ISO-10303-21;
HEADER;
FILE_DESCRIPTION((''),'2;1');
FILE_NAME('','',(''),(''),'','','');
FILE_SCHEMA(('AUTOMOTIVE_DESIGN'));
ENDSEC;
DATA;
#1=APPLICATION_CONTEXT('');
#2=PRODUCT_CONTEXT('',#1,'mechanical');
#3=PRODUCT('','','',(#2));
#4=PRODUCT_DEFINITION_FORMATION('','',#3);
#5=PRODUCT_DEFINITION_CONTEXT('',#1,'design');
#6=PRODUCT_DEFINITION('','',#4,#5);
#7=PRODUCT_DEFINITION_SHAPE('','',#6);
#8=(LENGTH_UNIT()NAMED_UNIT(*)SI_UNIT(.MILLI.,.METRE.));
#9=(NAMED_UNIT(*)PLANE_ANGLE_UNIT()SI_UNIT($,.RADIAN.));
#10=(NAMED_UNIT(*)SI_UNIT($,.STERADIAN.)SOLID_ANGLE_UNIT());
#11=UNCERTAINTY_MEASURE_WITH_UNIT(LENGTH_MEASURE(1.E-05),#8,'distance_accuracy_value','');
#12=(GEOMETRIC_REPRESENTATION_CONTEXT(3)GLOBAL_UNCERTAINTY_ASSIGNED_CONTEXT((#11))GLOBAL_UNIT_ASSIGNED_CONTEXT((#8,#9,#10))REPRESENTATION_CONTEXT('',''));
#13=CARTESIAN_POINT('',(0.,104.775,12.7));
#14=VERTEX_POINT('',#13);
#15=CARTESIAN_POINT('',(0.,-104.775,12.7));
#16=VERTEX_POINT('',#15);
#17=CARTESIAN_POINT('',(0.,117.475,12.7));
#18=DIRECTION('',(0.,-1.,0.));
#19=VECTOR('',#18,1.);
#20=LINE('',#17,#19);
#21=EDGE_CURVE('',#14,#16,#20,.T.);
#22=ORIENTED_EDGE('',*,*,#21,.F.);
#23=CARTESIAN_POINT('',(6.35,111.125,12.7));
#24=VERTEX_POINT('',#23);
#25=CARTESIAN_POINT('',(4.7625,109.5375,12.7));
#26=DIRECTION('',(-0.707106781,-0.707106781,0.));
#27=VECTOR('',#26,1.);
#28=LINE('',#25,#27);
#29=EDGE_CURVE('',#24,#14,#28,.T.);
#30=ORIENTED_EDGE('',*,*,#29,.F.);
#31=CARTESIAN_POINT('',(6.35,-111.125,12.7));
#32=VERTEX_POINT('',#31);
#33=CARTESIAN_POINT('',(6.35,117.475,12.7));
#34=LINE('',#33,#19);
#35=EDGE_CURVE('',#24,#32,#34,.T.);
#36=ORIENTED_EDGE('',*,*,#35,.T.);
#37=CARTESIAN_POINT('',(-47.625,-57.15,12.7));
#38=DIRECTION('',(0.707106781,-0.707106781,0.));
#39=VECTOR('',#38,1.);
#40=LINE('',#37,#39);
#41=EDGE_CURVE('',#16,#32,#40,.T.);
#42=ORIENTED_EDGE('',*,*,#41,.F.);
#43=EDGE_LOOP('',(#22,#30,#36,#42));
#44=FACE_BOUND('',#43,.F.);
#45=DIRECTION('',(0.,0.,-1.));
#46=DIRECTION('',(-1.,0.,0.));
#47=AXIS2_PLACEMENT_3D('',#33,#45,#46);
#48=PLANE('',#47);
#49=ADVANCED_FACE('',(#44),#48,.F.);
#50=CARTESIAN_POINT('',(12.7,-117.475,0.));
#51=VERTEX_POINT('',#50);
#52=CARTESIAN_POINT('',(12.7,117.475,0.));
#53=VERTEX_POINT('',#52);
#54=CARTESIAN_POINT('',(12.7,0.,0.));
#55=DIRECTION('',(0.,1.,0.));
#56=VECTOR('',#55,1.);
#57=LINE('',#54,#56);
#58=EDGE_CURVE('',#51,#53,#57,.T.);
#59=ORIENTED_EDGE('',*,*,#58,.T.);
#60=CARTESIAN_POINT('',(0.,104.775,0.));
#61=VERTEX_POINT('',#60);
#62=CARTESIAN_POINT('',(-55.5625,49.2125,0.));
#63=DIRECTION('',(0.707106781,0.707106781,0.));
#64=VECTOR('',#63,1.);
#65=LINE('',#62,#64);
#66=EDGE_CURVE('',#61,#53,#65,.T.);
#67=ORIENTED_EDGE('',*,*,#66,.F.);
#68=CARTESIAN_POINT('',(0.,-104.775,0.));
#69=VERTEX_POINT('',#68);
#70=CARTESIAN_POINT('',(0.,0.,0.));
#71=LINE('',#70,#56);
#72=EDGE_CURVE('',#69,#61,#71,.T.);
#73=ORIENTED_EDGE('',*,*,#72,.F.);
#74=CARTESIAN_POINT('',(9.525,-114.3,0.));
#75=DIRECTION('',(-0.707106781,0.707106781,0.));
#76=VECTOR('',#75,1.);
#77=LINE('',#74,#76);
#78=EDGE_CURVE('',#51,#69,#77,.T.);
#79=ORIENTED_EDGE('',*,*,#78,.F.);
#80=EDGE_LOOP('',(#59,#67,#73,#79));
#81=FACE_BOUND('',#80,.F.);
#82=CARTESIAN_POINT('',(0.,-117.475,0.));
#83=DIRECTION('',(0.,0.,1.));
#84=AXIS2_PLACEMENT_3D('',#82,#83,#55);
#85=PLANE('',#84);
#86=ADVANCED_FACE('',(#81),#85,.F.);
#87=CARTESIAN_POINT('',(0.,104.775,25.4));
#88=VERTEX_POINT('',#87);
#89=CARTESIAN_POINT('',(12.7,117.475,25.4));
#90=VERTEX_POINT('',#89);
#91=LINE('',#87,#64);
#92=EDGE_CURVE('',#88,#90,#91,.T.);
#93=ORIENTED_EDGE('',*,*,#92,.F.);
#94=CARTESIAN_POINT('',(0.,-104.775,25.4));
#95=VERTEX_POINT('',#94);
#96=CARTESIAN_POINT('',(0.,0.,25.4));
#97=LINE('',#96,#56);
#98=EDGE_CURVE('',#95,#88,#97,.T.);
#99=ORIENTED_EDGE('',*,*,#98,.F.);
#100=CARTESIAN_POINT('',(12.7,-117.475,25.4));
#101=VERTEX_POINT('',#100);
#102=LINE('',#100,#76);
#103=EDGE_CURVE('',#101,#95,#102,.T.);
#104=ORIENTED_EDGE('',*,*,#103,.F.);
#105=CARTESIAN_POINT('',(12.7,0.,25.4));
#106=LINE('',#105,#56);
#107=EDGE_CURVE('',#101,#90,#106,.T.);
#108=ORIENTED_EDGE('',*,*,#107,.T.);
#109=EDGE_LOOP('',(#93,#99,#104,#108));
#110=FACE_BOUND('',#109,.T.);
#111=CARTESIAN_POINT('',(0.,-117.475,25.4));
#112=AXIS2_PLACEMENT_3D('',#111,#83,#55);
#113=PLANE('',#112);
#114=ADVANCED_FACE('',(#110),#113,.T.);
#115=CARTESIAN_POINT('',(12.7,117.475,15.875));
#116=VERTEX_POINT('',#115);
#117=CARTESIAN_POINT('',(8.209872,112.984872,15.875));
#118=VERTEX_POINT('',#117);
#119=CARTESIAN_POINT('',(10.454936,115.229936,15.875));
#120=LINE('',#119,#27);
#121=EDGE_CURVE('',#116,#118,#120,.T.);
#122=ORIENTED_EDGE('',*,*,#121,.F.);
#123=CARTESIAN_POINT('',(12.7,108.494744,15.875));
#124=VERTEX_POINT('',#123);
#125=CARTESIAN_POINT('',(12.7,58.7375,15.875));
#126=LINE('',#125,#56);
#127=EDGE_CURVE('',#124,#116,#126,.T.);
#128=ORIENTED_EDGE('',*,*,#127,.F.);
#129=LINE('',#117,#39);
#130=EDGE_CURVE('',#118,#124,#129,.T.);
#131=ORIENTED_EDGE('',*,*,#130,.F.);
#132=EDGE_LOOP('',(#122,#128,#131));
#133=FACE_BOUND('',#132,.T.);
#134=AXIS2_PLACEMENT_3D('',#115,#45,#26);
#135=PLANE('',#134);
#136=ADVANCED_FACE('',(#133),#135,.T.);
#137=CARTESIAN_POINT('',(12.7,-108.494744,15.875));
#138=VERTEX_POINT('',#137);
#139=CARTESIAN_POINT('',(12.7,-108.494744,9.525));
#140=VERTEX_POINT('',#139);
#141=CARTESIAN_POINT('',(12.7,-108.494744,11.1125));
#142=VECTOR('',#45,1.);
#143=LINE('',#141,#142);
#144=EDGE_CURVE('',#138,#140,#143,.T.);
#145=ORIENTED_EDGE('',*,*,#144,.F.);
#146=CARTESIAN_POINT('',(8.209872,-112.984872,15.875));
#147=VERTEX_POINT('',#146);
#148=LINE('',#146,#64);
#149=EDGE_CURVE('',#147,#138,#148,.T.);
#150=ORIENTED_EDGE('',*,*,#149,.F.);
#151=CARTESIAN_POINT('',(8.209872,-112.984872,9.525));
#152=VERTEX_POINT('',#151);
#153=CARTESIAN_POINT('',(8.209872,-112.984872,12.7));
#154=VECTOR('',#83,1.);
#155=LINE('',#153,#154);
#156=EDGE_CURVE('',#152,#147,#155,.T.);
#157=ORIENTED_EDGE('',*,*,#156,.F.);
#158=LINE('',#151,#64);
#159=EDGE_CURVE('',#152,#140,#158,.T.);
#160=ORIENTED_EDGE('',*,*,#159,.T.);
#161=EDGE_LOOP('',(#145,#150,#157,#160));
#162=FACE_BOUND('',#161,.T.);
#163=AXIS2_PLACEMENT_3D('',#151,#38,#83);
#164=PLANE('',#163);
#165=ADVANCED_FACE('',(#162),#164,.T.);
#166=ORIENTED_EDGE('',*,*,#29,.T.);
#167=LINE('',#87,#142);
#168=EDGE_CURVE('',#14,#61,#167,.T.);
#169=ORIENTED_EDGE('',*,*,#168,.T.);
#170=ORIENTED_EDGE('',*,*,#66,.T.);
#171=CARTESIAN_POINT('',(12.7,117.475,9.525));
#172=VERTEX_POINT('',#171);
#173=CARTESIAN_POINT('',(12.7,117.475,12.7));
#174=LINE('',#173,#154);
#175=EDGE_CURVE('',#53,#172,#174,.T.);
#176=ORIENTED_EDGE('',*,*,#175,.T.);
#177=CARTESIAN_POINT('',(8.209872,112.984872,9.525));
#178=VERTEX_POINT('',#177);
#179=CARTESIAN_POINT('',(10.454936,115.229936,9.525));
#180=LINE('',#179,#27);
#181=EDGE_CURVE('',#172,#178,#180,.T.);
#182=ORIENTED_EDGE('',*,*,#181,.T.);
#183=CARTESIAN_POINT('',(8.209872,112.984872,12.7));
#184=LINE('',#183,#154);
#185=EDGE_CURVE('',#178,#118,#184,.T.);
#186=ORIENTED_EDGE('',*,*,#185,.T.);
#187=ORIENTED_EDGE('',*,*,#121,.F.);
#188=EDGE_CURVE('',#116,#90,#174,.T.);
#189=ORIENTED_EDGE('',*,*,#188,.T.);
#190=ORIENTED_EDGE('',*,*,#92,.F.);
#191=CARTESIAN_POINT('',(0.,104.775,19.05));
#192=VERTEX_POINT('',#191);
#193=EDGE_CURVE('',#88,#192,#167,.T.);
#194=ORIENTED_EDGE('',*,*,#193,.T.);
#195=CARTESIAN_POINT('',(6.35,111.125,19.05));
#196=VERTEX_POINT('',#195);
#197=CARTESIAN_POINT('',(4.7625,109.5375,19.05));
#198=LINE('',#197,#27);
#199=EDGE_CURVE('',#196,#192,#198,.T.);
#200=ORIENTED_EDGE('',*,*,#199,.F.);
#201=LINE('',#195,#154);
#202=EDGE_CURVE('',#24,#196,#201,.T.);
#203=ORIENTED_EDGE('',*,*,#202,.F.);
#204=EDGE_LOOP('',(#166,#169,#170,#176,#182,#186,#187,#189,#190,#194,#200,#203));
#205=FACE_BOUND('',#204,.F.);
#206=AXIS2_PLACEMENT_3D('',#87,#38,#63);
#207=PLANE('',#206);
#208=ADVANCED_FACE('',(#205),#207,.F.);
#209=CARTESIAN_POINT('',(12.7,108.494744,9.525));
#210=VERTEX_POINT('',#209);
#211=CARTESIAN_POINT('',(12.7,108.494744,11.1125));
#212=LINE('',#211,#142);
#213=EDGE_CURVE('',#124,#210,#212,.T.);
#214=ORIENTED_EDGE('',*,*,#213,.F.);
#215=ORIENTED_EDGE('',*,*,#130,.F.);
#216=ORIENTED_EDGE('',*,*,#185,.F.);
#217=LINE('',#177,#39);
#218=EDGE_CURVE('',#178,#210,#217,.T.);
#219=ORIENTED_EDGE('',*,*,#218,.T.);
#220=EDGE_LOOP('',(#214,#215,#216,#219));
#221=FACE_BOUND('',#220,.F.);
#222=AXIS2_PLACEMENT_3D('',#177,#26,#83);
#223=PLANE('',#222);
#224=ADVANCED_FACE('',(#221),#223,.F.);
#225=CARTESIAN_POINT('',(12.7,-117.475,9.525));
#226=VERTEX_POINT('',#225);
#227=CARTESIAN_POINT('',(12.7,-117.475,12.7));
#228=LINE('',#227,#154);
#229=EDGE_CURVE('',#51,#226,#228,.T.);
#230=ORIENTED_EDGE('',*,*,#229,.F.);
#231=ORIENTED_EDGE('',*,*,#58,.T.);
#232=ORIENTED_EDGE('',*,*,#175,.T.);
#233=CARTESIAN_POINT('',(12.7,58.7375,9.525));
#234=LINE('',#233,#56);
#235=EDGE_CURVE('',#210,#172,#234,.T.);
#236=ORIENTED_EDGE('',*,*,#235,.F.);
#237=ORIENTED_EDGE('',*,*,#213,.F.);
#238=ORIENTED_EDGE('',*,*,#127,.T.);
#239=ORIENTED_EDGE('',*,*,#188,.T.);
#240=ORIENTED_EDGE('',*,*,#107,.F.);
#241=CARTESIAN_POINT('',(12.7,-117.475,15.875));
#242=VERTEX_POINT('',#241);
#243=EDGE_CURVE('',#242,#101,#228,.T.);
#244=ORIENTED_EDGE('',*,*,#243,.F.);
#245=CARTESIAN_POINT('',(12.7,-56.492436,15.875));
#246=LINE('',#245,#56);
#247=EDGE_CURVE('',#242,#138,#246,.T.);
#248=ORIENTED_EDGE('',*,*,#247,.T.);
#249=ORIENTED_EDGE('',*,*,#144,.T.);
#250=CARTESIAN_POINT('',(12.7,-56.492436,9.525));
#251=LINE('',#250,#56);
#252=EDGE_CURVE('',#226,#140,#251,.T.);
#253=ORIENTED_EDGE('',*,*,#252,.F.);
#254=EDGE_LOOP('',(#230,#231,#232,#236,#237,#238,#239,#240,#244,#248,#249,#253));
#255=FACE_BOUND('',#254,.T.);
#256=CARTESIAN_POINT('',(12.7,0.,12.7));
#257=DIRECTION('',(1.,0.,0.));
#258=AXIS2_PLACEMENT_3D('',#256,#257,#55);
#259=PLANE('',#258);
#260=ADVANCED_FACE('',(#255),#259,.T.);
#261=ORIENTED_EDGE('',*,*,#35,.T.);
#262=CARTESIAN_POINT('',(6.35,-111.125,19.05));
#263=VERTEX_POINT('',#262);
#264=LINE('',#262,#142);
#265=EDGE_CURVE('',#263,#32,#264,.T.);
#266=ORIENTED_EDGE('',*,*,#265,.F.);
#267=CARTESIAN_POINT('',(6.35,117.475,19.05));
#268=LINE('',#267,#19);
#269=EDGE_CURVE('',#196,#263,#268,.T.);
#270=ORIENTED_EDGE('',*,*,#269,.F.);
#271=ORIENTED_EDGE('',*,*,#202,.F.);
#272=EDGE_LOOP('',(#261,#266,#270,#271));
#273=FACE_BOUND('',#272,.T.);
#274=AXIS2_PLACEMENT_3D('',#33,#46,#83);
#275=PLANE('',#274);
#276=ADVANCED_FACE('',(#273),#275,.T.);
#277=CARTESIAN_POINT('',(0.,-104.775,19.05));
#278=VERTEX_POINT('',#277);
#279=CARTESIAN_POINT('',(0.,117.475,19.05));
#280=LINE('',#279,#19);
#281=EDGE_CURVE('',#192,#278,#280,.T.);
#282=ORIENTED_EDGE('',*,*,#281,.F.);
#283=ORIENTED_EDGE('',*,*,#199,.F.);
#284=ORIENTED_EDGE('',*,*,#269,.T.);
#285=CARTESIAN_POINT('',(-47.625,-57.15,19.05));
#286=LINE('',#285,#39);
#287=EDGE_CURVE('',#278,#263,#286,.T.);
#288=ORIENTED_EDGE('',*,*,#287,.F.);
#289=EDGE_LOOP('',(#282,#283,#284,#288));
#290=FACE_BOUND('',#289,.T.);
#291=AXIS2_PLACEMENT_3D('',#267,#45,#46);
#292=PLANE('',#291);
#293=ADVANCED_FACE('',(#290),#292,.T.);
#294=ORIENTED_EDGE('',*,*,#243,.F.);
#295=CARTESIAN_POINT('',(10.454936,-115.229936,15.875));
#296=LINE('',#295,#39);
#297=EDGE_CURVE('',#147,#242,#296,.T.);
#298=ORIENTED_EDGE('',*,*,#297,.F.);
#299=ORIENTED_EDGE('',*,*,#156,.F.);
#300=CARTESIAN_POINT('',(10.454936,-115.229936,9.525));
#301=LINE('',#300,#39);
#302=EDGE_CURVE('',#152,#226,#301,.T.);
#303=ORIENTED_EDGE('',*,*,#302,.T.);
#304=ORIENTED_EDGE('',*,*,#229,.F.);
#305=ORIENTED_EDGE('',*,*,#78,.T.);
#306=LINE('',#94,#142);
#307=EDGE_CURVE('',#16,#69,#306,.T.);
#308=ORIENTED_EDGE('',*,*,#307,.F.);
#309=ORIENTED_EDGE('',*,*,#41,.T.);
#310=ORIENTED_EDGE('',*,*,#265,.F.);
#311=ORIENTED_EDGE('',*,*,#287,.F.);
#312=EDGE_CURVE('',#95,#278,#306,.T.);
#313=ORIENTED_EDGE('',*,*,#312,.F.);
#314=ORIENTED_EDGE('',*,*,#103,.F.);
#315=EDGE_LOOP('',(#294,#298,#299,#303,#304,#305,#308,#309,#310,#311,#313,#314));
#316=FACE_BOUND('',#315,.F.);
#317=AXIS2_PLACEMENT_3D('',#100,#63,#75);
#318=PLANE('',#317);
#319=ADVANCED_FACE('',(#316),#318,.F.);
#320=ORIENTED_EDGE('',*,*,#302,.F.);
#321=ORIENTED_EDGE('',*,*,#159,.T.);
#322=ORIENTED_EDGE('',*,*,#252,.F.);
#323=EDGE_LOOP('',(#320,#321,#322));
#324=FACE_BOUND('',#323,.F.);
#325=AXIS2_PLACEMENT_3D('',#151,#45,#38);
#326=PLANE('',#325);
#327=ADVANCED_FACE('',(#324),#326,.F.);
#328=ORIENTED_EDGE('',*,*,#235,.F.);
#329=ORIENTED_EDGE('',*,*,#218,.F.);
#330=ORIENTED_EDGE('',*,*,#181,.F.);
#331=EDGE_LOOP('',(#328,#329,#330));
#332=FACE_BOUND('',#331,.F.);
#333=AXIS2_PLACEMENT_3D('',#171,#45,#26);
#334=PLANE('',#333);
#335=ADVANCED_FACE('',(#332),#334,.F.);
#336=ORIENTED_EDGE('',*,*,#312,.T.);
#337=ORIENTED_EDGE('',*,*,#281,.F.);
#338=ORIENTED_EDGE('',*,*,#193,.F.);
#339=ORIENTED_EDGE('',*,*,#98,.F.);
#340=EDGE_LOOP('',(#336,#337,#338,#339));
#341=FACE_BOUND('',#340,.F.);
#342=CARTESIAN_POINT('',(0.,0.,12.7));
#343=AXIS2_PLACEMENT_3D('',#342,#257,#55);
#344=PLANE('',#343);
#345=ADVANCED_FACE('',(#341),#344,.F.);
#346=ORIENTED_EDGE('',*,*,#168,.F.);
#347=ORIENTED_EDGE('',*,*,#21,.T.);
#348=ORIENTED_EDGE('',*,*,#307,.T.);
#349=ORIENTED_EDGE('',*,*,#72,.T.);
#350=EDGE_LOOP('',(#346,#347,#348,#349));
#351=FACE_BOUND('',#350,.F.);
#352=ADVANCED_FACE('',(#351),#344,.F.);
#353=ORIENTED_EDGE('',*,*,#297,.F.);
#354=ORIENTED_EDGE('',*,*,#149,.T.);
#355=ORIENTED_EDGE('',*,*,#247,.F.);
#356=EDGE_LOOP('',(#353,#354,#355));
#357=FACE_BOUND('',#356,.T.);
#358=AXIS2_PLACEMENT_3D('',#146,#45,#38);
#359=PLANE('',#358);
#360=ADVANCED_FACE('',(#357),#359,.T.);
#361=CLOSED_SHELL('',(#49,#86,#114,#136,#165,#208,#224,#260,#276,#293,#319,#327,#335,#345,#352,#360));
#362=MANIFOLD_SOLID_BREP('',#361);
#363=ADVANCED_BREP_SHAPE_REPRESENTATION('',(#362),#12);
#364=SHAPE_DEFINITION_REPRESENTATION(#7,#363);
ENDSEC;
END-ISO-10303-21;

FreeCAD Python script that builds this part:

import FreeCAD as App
import Part
import Sketcher
Q = App.Units.Quantity


def add_polygon(sketch, points):
    """Adds a closed chain of lines whose ends are joined by coincident constraints."""
    first, n = sketch.GeometryCount, len(points)
    for a, b in zip(points, points[1:] + points[:1]):
        sketch.addGeometry(Part.LineSegment(App.Vector(*a, 0), App.Vector(*b, 0)), False)
    for i in range(n):
        sketch.addConstraint(Sketcher.Constraint("Coincident", first + i, 2, first + (i + 1) % n, 1))

doc = App.newDocument("Part")
body = doc.addObject("PartDesign::Body", "Body")

sketch1 = body.newObject("Sketcher::SketchObject", "Sketch")
sketch1.AttachmentSupport = (doc.getObject("YZ_Plane"), [""])
sketch1.MapMode = "FlatFace"
add_polygon(sketch1, [(-117, 25), (-117, 0), (117, 0), (117, 25)])
sketch1.addConstraint(Sketcher.Constraint("Vertical", 0))
sketch1.addConstraint(Sketcher.Constraint("Horizontal", 1))
sketch1.addConstraint(Sketcher.Constraint("Vertical", 2))
sketch1.addConstraint(Sketcher.Constraint("Horizontal", 3))
sketch1.addConstraint(Sketcher.Constraint("Symmetric", 0, 2, 1, 2, -1, 1))
sketch1.addConstraint(Sketcher.Constraint("DistanceY", 0, 2, 0, 1, Q("1 in")))
sketch1.addConstraint(Sketcher.Constraint("DistanceX", 1, 1, 1, 2, Q("9.25 in")))
pad1 = body.newObject("PartDesign::Pad", "Pad")
pad1.Profile = sketch1
pad1.Length = Q("0.5 in")

sketch2 = body.newObject("Sketcher::SketchObject", "Sketch001")
sketch2.AttachmentSupport = (doc.getObject("XZ_Plane"), [""])
sketch2.MapMode = "FlatFace"
sketch2.AttachmentOffset = App.Placement(App.Vector(0, 0, -4.625 * 25.4), App.Rotation())
add_polygon(sketch2, [(6, 19), (6, 13), (0, 13), (0, 19)])
sketch2.addConstraint(Sketcher.Constraint("Vertical", 0))
sketch2.addConstraint(Sketcher.Constraint("Horizontal", 1))
sketch2.addConstraint(Sketcher.Constraint("Vertical", 2))
sketch2.addConstraint(Sketcher.Constraint("Horizontal", 3))
sketch2.addConstraint(Sketcher.Constraint("PointOnObject", 1, 2, -2))
sketch2.addConstraint(Sketcher.Constraint("Equal", 3, 0))
sketch2.addConstraint(Sketcher.Constraint("DistanceX", 1, 2, 1, 1, Q("0.25 in")))
sketch2.addConstraint(Sketcher.Constraint("DistanceY", -1, 1, 0, 2, Q("0.5 in")))
pocket1 = body.newObject("PartDesign::Pocket", "Pocket")
pocket1.Profile = sketch2
pocket1.Type = "ThroughAll"
pocket1.Reversed = True

sketch3 = body.newObject("Sketcher::SketchObject", "Sketch002")
sketch3.AttachmentSupport = (doc.getObject("XY_Plane"), [""])
sketch3.MapMode = "FlatFace"
sketch3.AttachmentOffset = App.Placement(App.Vector(0, 0, 1 * 25.4), App.Rotation())
add_polygon(sketch3, [(0, 117), (0, 105), (13, 117)])
add_polygon(sketch3, [(13, -117), (0, -105), (0, -117)])
sketch3.addConstraint(Sketcher.Constraint("Vertical", 0))
sketch3.addConstraint(Sketcher.Constraint("Horizontal", 2))
sketch3.addConstraint(Sketcher.Constraint("Vertical", 4))
sketch3.addConstraint(Sketcher.Constraint("Horizontal", 5))
sketch3.addConstraint(Sketcher.Constraint("Symmetric", 0, 2, 3, 2, -1, 1))
sketch3.addConstraint(Sketcher.Constraint("Symmetric", 2, 2, 4, 2, -1))
sketch3.addConstraint(Sketcher.Constraint("Perpendicular", 1, 3))
sketch3.addConstraint(Sketcher.Constraint("Vertical", 1, 2, 5, 2))
sketch3.addConstraint(Sketcher.Constraint("DistanceX", 2, 2, 2, 1, Q("0.5 in")))
sketch3.addConstraint(Sketcher.Constraint("DistanceY", 3, 2, 0, 2, Q("8.25 in")))
pocket2 = body.newObject("PartDesign::Pocket", "Pocket001")
pocket2.Profile = sketch3
pocket2.Type = "ThroughAll"

sketch4 = body.newObject("Sketcher::SketchObject", "Sketch003")
sketch4.Placement = App.Placement(App.Vector(-52.3875, -52.3875, 0), App.Rotation(App.Vector(0.707106781, -0.707106781, 0), App.Vector(0, 0, 0.999999999), App.Vector(-0.707106781, -0.707106781, 0), "ZXY"))
add_polygon(sketch4, [(86, 16), (86, 10), (92, 10), (92, 16)])
sketch4.addConstraint(Sketcher.Constraint("Vertical", 0))
sketch4.addConstraint(Sketcher.Constraint("Horizontal", 1))
sketch4.addConstraint(Sketcher.Constraint("Vertical", 2))
sketch4.addConstraint(Sketcher.Constraint("Horizontal", 3))
sketch4.addConstraint(Sketcher.Constraint("Equal", 3, 0))
sketch4.addConstraint(Sketcher.Constraint("DistanceX", 1, 1, 1, 2, Q("0.25 in")))
sketch4.addConstraint(Sketcher.Constraint("DistanceY", -1, 1, 0, 2, Q("0.375 in")))
sketch4.addConstraint(Sketcher.Constraint("DistanceX", -1, 1, 0, 2, 85.697625))
pocket3 = body.newObject("PartDesign::Pocket", "Pocket002")
pocket3.Profile = sketch4
pocket3.Type = "ThroughAll"

sketch5 = body.newObject("Sketcher::SketchObject", "Sketch004")
sketch5.Placement = App.Placement(App.Vector(-52.3875, 52.3875, 0), App.Rotation(App.Vector(-0.707106781, -0.707106781, 0), App.Vector(0, 0, 0.999999999), App.Vector(-0.707106781, 0.707106781, 0), "ZXY"))
add_polygon(sketch5, [(-92, 16), (-92, 10), (-86, 10), (-86, 16)])
sketch5.addConstraint(Sketcher.Constraint("Vertical", 0))
sketch5.addConstraint(Sketcher.Constraint("Horizontal", 1))
sketch5.addConstraint(Sketcher.Constraint("Vertical", 2))
sketch5.addConstraint(Sketcher.Constraint("Horizontal", 3))
sketch5.addConstraint(Sketcher.Constraint("Equal", 3, 0))
sketch5.addConstraint(Sketcher.Constraint("DistanceX", 1, 1, 1, 2, Q("0.25 in")))
sketch5.addConstraint(Sketcher.Constraint("DistanceY", -1, 1, 0, 2, Q("0.375 in")))
sketch5.addConstraint(Sketcher.Constraint("DistanceX", 0, 2, -1, 1, 92.047625))
pocket4 = body.newObject("PartDesign::Pocket", "Pocket003")
pocket4.Profile = sketch5
pocket4.Type = "ThroughAll"

doc.recompute()
